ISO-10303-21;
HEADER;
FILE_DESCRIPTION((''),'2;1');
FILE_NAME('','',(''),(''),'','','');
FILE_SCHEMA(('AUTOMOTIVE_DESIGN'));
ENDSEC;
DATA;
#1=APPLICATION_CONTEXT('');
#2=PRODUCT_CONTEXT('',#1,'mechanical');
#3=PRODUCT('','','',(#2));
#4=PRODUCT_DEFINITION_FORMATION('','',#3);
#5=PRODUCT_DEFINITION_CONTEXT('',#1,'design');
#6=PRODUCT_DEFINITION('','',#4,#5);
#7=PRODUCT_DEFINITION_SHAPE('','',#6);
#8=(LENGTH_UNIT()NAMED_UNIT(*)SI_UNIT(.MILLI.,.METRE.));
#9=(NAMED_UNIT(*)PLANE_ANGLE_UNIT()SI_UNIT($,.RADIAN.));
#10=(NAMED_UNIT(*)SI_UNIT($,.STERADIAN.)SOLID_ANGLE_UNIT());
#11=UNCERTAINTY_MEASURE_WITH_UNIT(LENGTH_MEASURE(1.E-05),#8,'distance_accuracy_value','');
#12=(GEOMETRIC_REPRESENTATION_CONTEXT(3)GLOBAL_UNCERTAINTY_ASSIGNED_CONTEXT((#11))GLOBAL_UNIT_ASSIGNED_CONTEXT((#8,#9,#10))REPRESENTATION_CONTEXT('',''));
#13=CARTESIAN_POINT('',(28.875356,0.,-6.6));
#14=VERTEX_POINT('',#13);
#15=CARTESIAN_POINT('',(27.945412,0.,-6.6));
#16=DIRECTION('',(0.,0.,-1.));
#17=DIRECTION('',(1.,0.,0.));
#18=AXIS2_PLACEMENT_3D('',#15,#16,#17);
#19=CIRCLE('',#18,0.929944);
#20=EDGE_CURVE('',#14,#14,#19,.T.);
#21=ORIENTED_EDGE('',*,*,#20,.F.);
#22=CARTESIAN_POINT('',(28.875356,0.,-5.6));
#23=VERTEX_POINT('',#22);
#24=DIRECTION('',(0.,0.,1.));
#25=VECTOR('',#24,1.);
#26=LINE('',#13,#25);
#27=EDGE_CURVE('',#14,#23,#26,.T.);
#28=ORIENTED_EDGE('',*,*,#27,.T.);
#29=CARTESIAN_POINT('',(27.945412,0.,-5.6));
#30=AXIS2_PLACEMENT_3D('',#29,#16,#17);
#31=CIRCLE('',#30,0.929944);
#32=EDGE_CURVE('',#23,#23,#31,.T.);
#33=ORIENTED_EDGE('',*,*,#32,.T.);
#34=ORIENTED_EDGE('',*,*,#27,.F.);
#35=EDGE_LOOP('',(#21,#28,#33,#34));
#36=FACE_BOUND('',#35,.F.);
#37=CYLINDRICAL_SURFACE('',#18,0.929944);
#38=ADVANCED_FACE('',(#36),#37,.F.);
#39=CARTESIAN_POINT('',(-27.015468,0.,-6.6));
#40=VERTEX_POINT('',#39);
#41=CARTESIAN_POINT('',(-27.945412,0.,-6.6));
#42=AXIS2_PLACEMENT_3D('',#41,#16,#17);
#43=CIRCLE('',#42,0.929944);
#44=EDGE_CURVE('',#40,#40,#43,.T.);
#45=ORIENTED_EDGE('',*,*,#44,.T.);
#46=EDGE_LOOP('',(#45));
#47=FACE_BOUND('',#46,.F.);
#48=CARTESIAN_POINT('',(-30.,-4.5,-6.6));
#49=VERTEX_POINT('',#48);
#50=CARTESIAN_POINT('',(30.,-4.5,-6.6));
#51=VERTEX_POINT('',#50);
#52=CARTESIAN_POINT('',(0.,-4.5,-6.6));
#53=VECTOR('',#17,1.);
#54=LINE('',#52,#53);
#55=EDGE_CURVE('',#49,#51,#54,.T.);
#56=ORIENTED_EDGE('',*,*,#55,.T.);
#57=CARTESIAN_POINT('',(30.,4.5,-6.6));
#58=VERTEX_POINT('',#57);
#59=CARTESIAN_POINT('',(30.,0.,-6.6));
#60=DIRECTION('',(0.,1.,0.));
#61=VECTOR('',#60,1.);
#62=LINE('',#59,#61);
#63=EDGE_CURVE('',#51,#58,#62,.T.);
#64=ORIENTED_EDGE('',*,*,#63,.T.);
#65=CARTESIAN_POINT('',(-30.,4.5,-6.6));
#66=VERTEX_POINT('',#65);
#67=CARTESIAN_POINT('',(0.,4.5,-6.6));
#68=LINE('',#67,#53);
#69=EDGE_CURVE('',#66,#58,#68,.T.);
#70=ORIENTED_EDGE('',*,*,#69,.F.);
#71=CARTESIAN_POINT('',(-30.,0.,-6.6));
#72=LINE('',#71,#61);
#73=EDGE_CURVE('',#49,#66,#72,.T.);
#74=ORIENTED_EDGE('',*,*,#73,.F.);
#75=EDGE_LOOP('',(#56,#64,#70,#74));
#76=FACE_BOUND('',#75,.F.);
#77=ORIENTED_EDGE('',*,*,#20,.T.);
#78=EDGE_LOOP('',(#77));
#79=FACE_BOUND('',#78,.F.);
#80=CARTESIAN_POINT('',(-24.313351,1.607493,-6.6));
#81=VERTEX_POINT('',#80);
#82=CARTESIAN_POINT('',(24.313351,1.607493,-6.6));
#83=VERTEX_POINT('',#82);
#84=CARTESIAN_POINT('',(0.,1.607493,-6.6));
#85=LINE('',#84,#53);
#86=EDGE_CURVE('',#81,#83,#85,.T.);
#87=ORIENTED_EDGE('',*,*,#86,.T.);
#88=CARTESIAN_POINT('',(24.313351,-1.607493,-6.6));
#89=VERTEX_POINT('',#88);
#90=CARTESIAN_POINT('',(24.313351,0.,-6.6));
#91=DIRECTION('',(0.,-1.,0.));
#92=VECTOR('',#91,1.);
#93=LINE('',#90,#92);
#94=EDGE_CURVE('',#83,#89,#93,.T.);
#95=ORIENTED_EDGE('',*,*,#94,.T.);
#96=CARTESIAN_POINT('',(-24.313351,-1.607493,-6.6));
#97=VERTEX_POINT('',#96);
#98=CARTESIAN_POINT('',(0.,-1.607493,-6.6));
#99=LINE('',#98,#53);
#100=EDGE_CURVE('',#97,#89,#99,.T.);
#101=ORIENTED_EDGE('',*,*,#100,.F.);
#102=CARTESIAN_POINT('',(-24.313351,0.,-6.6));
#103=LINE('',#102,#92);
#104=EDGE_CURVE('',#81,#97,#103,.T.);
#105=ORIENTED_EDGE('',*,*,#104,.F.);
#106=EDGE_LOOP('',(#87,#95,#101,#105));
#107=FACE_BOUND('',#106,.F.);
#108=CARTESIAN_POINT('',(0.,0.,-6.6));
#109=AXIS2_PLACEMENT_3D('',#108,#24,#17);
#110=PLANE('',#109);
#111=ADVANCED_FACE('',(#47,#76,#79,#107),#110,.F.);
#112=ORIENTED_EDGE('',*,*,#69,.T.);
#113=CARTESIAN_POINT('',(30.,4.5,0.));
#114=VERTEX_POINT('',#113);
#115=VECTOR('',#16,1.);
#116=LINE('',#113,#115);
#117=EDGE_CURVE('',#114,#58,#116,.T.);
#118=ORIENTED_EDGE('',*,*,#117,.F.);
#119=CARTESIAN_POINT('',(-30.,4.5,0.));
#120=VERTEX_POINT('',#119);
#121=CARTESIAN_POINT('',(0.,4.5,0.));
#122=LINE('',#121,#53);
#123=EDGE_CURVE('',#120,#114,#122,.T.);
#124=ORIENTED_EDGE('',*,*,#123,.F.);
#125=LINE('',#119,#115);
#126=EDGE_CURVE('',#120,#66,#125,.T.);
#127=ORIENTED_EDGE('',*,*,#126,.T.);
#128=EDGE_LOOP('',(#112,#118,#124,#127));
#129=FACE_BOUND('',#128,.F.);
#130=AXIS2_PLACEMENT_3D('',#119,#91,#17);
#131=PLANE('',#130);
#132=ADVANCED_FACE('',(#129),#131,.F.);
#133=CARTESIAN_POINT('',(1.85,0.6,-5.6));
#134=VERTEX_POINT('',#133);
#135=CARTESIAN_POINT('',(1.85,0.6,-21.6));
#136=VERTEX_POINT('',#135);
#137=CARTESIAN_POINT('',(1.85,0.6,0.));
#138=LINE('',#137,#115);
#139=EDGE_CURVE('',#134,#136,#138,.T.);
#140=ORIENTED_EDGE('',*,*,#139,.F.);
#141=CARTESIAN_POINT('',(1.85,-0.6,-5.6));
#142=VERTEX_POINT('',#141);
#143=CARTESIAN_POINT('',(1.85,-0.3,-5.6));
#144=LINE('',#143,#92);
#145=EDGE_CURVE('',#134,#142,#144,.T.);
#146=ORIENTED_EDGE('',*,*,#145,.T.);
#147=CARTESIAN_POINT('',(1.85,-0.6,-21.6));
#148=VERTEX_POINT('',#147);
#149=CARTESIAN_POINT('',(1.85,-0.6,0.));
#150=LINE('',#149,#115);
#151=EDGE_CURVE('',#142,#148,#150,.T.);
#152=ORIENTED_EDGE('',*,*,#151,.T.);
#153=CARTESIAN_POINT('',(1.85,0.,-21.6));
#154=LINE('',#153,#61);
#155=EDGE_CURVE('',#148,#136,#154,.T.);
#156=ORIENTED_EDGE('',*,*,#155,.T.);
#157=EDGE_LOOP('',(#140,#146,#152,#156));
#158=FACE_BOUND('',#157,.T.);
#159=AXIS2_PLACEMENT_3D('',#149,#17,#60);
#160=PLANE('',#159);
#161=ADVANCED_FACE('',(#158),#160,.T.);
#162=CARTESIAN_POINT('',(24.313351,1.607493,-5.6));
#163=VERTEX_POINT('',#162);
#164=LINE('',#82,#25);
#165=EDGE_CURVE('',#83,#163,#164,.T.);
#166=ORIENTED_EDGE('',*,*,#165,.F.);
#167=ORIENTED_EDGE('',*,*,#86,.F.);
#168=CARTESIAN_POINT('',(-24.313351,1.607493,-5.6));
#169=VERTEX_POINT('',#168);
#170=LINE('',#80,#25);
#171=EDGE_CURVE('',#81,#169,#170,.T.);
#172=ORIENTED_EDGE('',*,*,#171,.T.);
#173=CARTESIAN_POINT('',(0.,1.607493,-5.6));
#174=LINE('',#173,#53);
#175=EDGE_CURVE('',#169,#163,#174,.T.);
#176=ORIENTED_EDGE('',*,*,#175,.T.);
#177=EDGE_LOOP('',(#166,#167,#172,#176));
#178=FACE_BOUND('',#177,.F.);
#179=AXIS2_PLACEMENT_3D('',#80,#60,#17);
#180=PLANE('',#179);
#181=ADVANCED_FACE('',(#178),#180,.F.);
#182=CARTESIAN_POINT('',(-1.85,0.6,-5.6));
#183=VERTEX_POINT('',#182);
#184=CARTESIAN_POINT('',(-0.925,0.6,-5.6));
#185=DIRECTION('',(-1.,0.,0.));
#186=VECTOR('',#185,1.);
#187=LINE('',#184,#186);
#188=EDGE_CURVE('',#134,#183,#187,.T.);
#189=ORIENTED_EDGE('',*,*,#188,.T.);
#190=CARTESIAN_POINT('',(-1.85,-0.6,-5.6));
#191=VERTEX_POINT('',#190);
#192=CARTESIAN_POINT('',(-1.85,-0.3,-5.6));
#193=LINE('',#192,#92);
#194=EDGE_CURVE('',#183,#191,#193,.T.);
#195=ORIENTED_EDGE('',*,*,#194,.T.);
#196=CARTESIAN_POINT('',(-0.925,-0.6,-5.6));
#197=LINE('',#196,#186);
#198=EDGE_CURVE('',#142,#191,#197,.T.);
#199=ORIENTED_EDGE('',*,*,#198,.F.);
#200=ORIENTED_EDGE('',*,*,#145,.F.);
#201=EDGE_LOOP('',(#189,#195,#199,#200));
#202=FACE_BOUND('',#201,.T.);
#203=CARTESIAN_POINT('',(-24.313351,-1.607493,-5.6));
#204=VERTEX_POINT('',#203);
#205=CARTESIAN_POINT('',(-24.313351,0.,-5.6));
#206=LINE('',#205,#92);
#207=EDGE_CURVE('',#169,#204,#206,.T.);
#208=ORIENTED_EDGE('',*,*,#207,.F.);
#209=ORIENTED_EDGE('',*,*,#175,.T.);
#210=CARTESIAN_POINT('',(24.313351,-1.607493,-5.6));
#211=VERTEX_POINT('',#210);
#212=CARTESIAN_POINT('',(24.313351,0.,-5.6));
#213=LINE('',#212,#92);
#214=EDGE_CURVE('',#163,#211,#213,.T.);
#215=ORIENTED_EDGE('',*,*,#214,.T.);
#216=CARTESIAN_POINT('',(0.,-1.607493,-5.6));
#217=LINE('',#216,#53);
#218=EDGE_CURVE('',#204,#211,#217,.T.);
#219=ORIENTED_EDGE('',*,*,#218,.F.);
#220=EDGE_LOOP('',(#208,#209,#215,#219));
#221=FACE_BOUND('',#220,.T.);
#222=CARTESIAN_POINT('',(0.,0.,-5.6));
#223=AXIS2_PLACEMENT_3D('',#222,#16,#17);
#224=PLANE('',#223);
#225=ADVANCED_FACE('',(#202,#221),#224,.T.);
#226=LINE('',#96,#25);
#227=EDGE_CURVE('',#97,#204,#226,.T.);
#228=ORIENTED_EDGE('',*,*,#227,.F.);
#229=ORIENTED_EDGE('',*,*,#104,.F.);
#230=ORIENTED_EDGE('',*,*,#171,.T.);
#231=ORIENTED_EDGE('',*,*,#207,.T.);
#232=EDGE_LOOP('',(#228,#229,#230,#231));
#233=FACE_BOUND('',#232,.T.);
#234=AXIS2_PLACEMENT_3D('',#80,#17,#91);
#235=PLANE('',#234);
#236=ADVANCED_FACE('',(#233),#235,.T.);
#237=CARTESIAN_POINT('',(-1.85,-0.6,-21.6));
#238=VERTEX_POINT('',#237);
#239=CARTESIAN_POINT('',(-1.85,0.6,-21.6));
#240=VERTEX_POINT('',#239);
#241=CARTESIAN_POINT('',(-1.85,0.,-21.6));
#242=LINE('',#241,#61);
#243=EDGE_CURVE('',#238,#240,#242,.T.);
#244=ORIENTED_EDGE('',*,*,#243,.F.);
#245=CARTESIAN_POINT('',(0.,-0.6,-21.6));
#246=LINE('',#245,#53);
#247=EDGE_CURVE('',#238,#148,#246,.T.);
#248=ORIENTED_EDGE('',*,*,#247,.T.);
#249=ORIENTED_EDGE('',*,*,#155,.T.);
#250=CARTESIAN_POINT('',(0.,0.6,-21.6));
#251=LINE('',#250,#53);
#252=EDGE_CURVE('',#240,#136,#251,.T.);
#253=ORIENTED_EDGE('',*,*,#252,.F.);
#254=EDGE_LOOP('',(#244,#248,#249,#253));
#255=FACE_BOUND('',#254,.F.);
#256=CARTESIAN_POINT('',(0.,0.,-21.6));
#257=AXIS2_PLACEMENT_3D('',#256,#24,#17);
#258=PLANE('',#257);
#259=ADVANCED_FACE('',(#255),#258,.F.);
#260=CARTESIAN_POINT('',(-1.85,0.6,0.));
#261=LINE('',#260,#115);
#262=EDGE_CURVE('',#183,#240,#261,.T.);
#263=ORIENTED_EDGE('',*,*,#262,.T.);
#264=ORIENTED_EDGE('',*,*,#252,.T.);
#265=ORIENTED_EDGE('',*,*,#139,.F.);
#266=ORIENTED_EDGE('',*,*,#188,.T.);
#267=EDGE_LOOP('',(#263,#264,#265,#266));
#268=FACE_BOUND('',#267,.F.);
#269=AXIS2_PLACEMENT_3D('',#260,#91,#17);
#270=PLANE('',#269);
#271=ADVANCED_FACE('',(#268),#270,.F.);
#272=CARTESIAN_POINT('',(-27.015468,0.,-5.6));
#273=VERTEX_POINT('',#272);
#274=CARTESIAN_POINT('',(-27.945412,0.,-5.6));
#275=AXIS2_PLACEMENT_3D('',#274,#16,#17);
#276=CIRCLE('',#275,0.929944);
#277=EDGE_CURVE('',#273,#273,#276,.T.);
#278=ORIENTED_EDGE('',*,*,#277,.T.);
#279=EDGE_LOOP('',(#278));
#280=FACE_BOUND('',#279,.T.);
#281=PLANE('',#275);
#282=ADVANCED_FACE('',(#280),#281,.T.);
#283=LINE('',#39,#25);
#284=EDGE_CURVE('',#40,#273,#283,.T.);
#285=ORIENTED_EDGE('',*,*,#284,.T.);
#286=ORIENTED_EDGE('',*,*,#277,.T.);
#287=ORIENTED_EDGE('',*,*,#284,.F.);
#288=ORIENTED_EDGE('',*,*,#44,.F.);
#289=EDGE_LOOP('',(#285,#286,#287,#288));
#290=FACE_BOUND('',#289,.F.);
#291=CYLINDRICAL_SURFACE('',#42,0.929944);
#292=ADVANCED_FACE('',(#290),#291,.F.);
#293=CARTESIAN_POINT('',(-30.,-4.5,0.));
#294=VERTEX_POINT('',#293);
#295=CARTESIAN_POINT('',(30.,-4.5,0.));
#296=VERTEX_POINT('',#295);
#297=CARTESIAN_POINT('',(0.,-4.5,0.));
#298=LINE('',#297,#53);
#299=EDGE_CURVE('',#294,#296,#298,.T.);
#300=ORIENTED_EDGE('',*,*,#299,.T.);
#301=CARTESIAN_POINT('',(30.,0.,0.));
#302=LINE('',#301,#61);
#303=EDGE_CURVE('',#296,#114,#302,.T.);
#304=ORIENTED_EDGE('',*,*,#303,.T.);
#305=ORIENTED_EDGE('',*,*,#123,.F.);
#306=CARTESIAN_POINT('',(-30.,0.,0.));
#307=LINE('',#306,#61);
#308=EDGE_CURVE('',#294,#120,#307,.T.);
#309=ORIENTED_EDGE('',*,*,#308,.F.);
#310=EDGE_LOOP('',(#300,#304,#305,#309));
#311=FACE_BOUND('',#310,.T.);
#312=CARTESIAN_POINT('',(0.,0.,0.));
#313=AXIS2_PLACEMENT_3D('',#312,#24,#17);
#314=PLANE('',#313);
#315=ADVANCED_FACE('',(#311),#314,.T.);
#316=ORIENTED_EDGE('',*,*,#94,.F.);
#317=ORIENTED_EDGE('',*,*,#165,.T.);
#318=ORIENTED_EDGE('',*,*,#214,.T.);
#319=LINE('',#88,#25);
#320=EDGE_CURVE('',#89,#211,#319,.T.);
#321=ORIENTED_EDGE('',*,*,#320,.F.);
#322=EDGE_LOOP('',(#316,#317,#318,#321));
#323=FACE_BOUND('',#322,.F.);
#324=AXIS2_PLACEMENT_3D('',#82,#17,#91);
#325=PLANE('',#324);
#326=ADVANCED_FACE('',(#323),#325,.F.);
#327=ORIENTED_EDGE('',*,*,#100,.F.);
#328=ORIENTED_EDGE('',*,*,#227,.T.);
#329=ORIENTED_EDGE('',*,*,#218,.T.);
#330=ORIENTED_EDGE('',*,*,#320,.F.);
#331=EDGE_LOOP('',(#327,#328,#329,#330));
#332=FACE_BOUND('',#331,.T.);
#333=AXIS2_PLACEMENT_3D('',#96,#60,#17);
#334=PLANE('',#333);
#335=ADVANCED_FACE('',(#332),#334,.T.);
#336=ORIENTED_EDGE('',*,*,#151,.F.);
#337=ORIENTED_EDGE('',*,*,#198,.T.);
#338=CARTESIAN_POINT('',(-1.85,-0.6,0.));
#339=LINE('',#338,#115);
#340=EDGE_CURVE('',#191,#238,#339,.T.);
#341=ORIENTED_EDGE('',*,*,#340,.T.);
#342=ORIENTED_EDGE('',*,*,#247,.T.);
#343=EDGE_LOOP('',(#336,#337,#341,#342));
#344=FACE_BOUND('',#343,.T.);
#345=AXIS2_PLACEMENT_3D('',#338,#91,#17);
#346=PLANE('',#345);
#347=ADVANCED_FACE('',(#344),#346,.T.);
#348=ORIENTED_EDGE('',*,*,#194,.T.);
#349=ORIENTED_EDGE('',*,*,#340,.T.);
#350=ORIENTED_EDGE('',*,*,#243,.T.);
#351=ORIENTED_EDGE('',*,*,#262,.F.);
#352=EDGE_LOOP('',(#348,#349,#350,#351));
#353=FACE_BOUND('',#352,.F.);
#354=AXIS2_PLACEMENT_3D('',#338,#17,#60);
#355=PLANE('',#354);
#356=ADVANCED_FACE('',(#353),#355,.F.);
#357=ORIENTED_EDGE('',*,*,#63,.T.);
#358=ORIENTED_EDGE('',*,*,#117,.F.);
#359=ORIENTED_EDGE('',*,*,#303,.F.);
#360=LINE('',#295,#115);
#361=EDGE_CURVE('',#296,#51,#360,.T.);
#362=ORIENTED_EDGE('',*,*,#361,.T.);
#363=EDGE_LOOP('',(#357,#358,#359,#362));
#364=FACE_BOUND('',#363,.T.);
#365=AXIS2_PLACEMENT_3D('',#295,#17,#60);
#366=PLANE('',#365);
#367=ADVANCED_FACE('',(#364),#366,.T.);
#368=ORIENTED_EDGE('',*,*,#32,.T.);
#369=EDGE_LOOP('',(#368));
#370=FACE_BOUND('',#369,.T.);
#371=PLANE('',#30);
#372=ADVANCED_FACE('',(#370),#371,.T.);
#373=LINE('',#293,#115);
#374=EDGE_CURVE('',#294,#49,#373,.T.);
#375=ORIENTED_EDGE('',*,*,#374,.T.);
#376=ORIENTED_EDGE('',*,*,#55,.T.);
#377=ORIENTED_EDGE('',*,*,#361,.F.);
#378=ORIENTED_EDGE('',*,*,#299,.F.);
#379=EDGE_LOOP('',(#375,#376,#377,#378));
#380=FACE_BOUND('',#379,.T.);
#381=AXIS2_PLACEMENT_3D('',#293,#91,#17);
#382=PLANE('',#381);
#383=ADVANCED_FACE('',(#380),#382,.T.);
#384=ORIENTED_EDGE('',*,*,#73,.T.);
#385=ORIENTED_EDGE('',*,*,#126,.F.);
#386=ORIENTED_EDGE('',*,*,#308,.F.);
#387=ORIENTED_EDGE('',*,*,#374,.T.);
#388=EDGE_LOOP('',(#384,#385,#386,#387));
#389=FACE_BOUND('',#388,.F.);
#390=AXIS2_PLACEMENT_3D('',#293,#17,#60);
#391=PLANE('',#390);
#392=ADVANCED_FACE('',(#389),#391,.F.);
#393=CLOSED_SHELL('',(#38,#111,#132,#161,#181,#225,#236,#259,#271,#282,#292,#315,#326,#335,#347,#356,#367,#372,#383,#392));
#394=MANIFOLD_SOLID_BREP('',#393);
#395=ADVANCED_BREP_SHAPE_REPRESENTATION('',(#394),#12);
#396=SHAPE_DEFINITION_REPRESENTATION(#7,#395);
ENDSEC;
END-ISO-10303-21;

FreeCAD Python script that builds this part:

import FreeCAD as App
import Part
import Sketcher


def add_polygon(sketch, points):
    """Adds a closed chain of lines whose ends are joined by coincident constraints."""
    first, n = sketch.GeometryCount, len(points)
    for a, b in zip(points, points[1:] + points[:1]):
        sketch.addGeometry(Part.LineSegment(App.Vector(*a, 0), App.Vector(*b, 0)), False)
    for i in range(n):
        sketch.addConstraint(Sketcher.Constraint("Coincident", first + i, 2, first + (i + 1) % n, 1))

doc = App.newDocument("Part")
body = doc.addObject("PartDesign::Body", "Body")

# Sketch on XY plane
sketch1 = body.newObject("Sketcher::SketchObject", "Sketch")
sketch1.AttachmentSupport = (doc.getObject("XY_Plane"), [""])
sketch1.MapMode = "FlatFace"
add_polygon(sketch1, [(-30, 4), (-30, -4), (30, -4), (30, 4)])  # lines 0-3
sketch1.addConstraint([
    Sketcher.Constraint("Vertical", 0),
    Sketcher.Constraint("Horizontal", 1),
    Sketcher.Constraint("Vertical", 2),
    Sketcher.Constraint("Horizontal", 3),
    Sketcher.Constraint("Symmetric", 0, 2, 2, 2, -1, 1),
    Sketcher.Constraint("DistanceX", 1, 1, 1, 2, 60.0),
    Sketcher.Constraint("DistanceY", 0, 2, 0, 1, 9.0),
])
pad1 = body.newObject("PartDesign::Pad", "Pad")
pad1.Profile = sketch1
pad1.Length = 6.6
pad1.Reversed = True

# Sketch on XY plane
sketch2 = body.newObject("Sketcher::SketchObject", "Sketch001")
sketch2.AttachmentSupport = (doc.getObject("XY_Plane"), [""])
sketch2.MapMode = "FlatFace"
sketch2.AttachmentOffset = App.Placement(App.Vector(0, 0, -6.6), App.Rotation())
add_polygon(sketch2, [(-24.3, -1.6), (-24.3, 1.6), (24.3, 1.6), (24.3, -1.6)])  # lines 0-3
sketch2.addGeometry(Part.Circle(App.Vector(-27.9, 0, 0), App.Vector(0, 0, 1), 0.9), False)  # 4
sketch2.addGeometry(Part.Circle(App.Vector(27.9, 0, 0), App.Vector(0, 0, 1), 0.9), False)  # 5
sketch2.addConstraint([
    Sketcher.Constraint("Vertical", 0),
    Sketcher.Constraint("Horizontal", 1),
    Sketcher.Constraint("Vertical", 2),
    Sketcher.Constraint("Horizontal", 3),
    Sketcher.Constraint("Equal", 4, 5),
    Sketcher.Constraint("Symmetric", 4, 3, 5, 3, -1, 1),
    Sketcher.Constraint("Symmetric", 0, 2, 2, 2, -1, 1),
    Sketcher.Constraint("PointOnObject", 4, 3, -1),
    Sketcher.Constraint("Diameter", 4, 1.859888),
    Sketcher.Constraint("DistanceX", 1, 1, 1, 2, 48.626702),
    Sketcher.Constraint("DistanceY", 0, 1, 0, 2, 3.214986),
    Sketcher.Constraint("DistanceX", 4, 3, 0, 2, 3.632061),
])
pocket1 = body.newObject("PartDesign::Pocket", "Pocket")
pocket1.Profile = sketch2
pocket1.Length = 1
pocket1.Reversed = True

# Sketch on XY plane
sketch3 = body.newObject("Sketcher::SketchObject", "Sketch002")
sketch3.AttachmentSupport = (doc.getObject("XY_Plane"), [""])
sketch3.MapMode = "FlatFace"
add_polygon(sketch3, [(-1.9, 0.6), (-1.9, -0.6), (1.9, -0.6), (1.9, 0.6)])  # lines 0-3
sketch3.addConstraint([
    Sketcher.Constraint("Vertical", 0),
    Sketcher.Constraint("Horizontal", 1),
    Sketcher.Constraint("Vertical", 2),
    Sketcher.Constraint("Horizontal", 3),
    Sketcher.Constraint("Symmetric", 0, 2, 2, 2, -1, 1),
    Sketcher.Constraint("DistanceX", 1, 1, 1, 2, 3.7),
    Sketcher.Constraint("DistanceY", 0, 2, 0, 1, 1.2),
])
pad2 = body.newObject("PartDesign::Pad", "Pad001")
pad2.Profile = sketch3
pad2.Length = 21.6
pad2.Reversed = True

doc.recompute()
